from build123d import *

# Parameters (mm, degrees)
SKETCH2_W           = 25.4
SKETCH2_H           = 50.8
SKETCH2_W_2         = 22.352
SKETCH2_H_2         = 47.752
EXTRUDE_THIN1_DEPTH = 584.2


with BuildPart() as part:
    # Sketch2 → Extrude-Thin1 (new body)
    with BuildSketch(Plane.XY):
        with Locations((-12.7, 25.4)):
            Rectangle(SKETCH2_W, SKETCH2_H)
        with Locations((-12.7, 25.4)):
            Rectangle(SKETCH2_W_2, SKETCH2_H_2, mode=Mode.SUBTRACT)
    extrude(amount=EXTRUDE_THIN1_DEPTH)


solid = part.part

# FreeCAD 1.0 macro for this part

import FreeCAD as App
import Part
import Sketcher

V = App.Vector
Q = App.Units.Quantity


def add_polygon(sketch, points):
    """Adds a closed chain of lines whose ends are joined by coincident constraints."""
    first, n = sketch.GeometryCount, len(points)
    for a, b in zip(points, points[1:] + points[:1]):
        sketch.addGeometry(Part.LineSegment(App.Vector(*a, 0), App.Vector(*b, 0)), False)
    for i in range(n):
        sketch.addConstraint(Sketcher.Constraint("Coincident", first + i, 2, first + (i + 1) % n, 1))

doc = App.newDocument("Part")
body = doc.addObject("PartDesign::Body", "Body")

sketch1 = body.newObject("Sketcher::SketchObject", "Sketch")
sketch1.AttachmentSupport = (doc.getObject("XY_Plane"), [""])
sketch1.MapMode = "FlatFace"
add_polygon(sketch1, [(-25, 51), (-25, 0), (0, 0), (0, 51)])
add_polygon(sketch1, [(-2, 2), (-24, 2), (-24, 49), (-2, 49)])
sketch1.addConstraint(Sketcher.Constraint("Vertical", 0))
sketch1.addConstraint(Sketcher.Constraint("Horizontal", 1))
sketch1.addConstraint(Sketcher.Constraint("Vertical", 2))
sketch1.addConstraint(Sketcher.Constraint("Horizontal", 3))
sketch1.addConstraint(Sketcher.Constraint("Horizontal", 4))
sketch1.addConstraint(Sketcher.Constraint("Vertical", 5))
sketch1.addConstraint(Sketcher.Constraint("Horizontal", 6))
sketch1.addConstraint(Sketcher.Constraint("Vertical", 7))
sketch1.addConstraint(Sketcher.Constraint("Coincident", 1, 2, -1, 1))
sketch1.addConstraint(Sketcher.Constraint("DistanceX", 1, 1, 1, 2, Q("1 in")))
sketch1.addConstraint(Sketcher.Constraint("DistanceY", 0, 2, 0, 1, Q("2 in")))
sketch1.addConstraint(Sketcher.Constraint("DistanceX", 4, 2, 4, 1, Q("0.88 in")))
sketch1.addConstraint(Sketcher.Constraint("DistanceY", 5, 1, 5, 2, Q("1.88 in")))
sketch1.addConstraint(Sketcher.Constraint("DistanceX", 4, 2, -1, 1, Q("0.94 in")))
sketch1.addConstraint(Sketcher.Constraint("DistanceY", -1, 1, 4, 2, Q("0.06 in")))
pad1 = body.newObject("PartDesign::Pad", "Pad")
pad1.Profile = sketch1
pad1.Length = Q("23 in")

doc.recompute()
